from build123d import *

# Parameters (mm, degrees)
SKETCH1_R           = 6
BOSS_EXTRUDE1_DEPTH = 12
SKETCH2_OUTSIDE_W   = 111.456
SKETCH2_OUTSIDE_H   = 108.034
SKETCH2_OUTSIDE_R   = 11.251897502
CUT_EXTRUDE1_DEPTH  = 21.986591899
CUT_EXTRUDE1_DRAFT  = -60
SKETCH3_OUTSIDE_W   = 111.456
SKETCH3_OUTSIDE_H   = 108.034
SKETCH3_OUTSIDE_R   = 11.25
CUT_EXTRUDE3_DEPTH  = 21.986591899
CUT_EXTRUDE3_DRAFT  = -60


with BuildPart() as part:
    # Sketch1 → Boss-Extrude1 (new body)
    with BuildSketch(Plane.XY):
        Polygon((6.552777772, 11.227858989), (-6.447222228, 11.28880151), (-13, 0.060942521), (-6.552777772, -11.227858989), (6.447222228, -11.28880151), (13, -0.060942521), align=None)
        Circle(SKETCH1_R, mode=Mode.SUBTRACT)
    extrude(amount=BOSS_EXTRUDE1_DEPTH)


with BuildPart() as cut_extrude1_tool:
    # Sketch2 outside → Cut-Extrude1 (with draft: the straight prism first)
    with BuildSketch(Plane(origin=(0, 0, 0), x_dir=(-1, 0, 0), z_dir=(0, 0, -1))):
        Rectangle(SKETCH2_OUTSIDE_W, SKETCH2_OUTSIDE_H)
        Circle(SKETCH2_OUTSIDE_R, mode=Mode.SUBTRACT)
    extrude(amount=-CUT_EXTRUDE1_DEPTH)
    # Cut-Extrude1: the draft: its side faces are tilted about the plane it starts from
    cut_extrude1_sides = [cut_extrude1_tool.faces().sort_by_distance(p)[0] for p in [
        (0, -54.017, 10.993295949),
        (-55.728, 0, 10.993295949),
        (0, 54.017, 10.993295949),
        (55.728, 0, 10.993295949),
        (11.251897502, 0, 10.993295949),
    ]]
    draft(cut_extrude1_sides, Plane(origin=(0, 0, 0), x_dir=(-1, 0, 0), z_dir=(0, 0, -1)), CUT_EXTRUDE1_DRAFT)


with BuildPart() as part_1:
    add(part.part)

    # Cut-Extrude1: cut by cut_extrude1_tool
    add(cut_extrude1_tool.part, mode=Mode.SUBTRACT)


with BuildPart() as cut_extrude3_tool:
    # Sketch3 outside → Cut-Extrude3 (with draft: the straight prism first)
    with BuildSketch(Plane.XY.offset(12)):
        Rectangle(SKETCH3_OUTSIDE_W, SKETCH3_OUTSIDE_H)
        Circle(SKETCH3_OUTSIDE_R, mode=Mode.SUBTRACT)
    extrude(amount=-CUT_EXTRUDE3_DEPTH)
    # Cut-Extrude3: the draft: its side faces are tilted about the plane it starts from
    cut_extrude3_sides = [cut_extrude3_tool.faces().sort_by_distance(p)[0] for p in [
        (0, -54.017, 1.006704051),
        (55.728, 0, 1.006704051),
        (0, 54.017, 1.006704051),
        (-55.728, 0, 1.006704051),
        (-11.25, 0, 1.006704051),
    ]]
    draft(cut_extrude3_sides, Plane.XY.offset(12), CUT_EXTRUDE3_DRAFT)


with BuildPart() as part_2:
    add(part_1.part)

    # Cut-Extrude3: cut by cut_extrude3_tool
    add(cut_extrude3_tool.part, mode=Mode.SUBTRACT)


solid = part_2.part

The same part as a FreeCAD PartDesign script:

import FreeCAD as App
import Part
import Sketcher
Q = App.Units.Quantity


def faces_at(feature, points):
    """Names of the faces that lie closest to the given points."""
    faces = feature.Shape.Faces
    near = lambda p: min(range(len(faces)), key=lambda i: faces[i].distToShape(Part.Vertex(*p))[0])
    return sorted({f"Face{near(p) + 1}" for p in points})


def add_polygon(sketch, points):
    """Adds a closed chain of lines whose ends are joined by coincident constraints."""
    first, n = sketch.GeometryCount, len(points)
    for a, b in zip(points, points[1:] + points[:1]):
        sketch.addGeometry(Part.LineSegment(App.Vector(*a, 0), App.Vector(*b, 0)), False)
    for i in range(n):
        sketch.addConstraint(Sketcher.Constraint("Coincident", first + i, 2, first + (i + 1) % n, 1))

doc = App.newDocument("Part")
body = doc.addObject("PartDesign::Body", "Body")

sketch1 = body.newObject("Sketcher::SketchObject", "Sketch")
sketch1.AttachmentSupport = (doc.getObject("XY_Plane"), [""])
sketch1.MapMode = "FlatFace"
add_polygon(sketch1, [(6.552778, 11.227859), (-6.447222, 11.288802), (-13, 0.060943), (-6.552778, -11.227859), (6.447222, -11.288802), (13, -0.060943)])
sketch1.addGeometry(Part.Circle(App.Vector(0, 0, 0), App.Vector(0, 0, 1), 6), False)
sketch1.addConstraint(Sketcher.Constraint("Coincident", 6, 3, -1, 1))
sketch1.addConstraint(Sketcher.Constraint("Symmetric", 0, 2, 3, 2, -1, 1))
sketch1.addConstraint(Sketcher.Constraint("Symmetric", 1, 2, 4, 2, -1, 1))
sketch1.addConstraint(Sketcher.Constraint("Symmetric", 2, 2, 5, 2, -1, 1))
sketch1.addConstraint(Sketcher.Constraint("Equal", 0, 1))
sketch1.addConstraint(Sketcher.Constraint("Equal", 1, 2))
sketch1.addConstraint(Sketcher.Constraint("Diameter", 6, Q("12 mm")))
sketch1.addConstraint(Sketcher.Constraint("DistanceX", 1, 2, -1, 1, Q("13 mm")))
sketch1.addConstraint(Sketcher.Constraint("DistanceX", 2, 2, 3, 2, Q("13 mm")))
sketch1.addConstraint(Sketcher.Constraint("DistanceY", -1, 1, 0, 2, Q("11.288802 mm")))
sketch1.addConstraint(Sketcher.Constraint("DistanceY", 2, 2, 1, 2, Q("11.288802 mm")))
pad1 = body.newObject("PartDesign::Pad", "Pad")
pad1.Profile = sketch1
pad1.Length = 12
body2 = doc.addObject("PartDesign::Body", "Body001")

sketch2 = body2.newObject("Sketcher::SketchObject", "Sketch001")
sketch2.AttachmentSupport = (doc.getObject("XY_Plane001"), [""])
sketch2.MapMode = "FlatFace"
add_polygon(sketch2, [(55.728, 54.017), (55.728, -54.017), (-55.728, -54.017), (-55.728, 54.017)])
sketch2.addGeometry(Part.Circle(App.Vector(0, 0, 0), App.Vector(0, 0, 1), 11.251898), False)
sketch2.addConstraint(Sketcher.Constraint("Vertical", 0))
sketch2.addConstraint(Sketcher.Constraint("Horizontal", 1))
sketch2.addConstraint(Sketcher.Constraint("Vertical", 2))
sketch2.addConstraint(Sketcher.Constraint("Horizontal", 3))
sketch2.addConstraint(Sketcher.Constraint("Coincident", 4, 3, -1, 1))
sketch2.addConstraint(Sketcher.Constraint("Symmetric", 0, 2, 2, 2, -1, 1))
sketch2.addConstraint(Sketcher.Constraint("DistanceX", 1, 2, 1, 1, Q("111.456 mm")))
sketch2.addConstraint(Sketcher.Constraint("DistanceY", 0, 2, 0, 1, Q("108.034 mm")))
sketch2.addConstraint(Sketcher.Constraint("Diameter", 4, Q("22.503795 mm")))
pad2 = body2.newObject("PartDesign::Pad", "Pad001")
pad2.Profile = sketch2
pad2.Length = 21.986592
doc.recompute()

draft = body2.newObject("PartDesign::Draft", "Draft")
draft.Base = (pad2, faces_at(pad2, [
    (0, -54.017, 10.993),
    (-55.728, 0, 10.993),
    (0, 54.017, 10.993),
    (55.728, 0, 10.993),
    (11.252, 0, 10.993),
]))
draft.NeutralPlane = (doc.getObject("XY_Plane001"), [""])
draft.Angle = 60
draft.Reversed = False
doc.recompute()

boolean = body.newObject("PartDesign::Boolean", "Boolean")
boolean.Type = "Cut"
boolean.addObjects([body2])
body3 = doc.addObject("PartDesign::Body", "Body002")

sketch3 = body3.newObject("Sketcher::SketchObject", "Sketch002")
sketch3.AttachmentSupport = (doc.getObject("XY_Plane002"), [""])
sketch3.MapMode = "FlatFace"
sketch3.AttachmentOffset = App.Placement(App.Vector(0, 0, 12), App.Rotation())
add_polygon(sketch3, [(-55.728, 54.017), (-55.728, -54.017), (55.728, -54.017), (55.728, 54.017)])
sketch3.addGeometry(Part.Circle(App.Vector(0, 0, 0), App.Vector(0, 0, 1), 11.25), False)
sketch3.addConstraint(Sketcher.Constraint("Vertical", 0))
sketch3.addConstraint(Sketcher.Constraint("Horizontal", 1))
sketch3.addConstraint(Sketcher.Constraint("Vertical", 2))
sketch3.addConstraint(Sketcher.Constraint("Horizontal", 3))
sketch3.addConstraint(Sketcher.Constraint("Coincident", 4, 3, -1, 1))
sketch3.addConstraint(Sketcher.Constraint("Symmetric", 0, 2, 2, 2, -1, 1))
sketch3.addConstraint(Sketcher.Constraint("Diameter", 4, Q("22.5 mm")))
sketch3.addConstraint(Sketcher.Constraint("DistanceX", 1, 1, 1, 2, Q("111.456 mm")))
sketch3.addConstraint(Sketcher.Constraint("DistanceY", 0, 2, 0, 1, Q("108.034 mm")))
pad3 = body3.newObject("PartDesign::Pad", "Pad002")
pad3.Profile = sketch3
pad3.Length = 21.986592
pad3.Reversed = True
doc.recompute()

datumplane = body3.newObject("PartDesign::Plane", "DatumPlane")
datumplane.AttachmentSupport = (doc.getObject("XY_Plane002"), [""])
datumplane.MapMode = "FlatFace"
datumplane.AttachmentOffset = App.Placement(App.Vector(0, 0, 12), App.Rotation())
draft2 = body3.newObject("PartDesign::Draft", "Draft001")
draft2.Base = (pad3, faces_at(pad3, [
    (0, -54.017, 1.007),
    (55.728, 0, 1.007),
    (0, 54.017, 1.007),
    (-55.728, 0, 1.007),
    (-11.25, 0, 1.007),
]))
draft2.NeutralPlane = (datumplane, [""])
draft2.Angle = 60
draft2.Reversed = True
doc.recompute()

boolean2 = body.newObject("PartDesign::Boolean", "Boolean001")
boolean2.Type = "Cut"
boolean2.addObjects([body3])

doc.recompute()
